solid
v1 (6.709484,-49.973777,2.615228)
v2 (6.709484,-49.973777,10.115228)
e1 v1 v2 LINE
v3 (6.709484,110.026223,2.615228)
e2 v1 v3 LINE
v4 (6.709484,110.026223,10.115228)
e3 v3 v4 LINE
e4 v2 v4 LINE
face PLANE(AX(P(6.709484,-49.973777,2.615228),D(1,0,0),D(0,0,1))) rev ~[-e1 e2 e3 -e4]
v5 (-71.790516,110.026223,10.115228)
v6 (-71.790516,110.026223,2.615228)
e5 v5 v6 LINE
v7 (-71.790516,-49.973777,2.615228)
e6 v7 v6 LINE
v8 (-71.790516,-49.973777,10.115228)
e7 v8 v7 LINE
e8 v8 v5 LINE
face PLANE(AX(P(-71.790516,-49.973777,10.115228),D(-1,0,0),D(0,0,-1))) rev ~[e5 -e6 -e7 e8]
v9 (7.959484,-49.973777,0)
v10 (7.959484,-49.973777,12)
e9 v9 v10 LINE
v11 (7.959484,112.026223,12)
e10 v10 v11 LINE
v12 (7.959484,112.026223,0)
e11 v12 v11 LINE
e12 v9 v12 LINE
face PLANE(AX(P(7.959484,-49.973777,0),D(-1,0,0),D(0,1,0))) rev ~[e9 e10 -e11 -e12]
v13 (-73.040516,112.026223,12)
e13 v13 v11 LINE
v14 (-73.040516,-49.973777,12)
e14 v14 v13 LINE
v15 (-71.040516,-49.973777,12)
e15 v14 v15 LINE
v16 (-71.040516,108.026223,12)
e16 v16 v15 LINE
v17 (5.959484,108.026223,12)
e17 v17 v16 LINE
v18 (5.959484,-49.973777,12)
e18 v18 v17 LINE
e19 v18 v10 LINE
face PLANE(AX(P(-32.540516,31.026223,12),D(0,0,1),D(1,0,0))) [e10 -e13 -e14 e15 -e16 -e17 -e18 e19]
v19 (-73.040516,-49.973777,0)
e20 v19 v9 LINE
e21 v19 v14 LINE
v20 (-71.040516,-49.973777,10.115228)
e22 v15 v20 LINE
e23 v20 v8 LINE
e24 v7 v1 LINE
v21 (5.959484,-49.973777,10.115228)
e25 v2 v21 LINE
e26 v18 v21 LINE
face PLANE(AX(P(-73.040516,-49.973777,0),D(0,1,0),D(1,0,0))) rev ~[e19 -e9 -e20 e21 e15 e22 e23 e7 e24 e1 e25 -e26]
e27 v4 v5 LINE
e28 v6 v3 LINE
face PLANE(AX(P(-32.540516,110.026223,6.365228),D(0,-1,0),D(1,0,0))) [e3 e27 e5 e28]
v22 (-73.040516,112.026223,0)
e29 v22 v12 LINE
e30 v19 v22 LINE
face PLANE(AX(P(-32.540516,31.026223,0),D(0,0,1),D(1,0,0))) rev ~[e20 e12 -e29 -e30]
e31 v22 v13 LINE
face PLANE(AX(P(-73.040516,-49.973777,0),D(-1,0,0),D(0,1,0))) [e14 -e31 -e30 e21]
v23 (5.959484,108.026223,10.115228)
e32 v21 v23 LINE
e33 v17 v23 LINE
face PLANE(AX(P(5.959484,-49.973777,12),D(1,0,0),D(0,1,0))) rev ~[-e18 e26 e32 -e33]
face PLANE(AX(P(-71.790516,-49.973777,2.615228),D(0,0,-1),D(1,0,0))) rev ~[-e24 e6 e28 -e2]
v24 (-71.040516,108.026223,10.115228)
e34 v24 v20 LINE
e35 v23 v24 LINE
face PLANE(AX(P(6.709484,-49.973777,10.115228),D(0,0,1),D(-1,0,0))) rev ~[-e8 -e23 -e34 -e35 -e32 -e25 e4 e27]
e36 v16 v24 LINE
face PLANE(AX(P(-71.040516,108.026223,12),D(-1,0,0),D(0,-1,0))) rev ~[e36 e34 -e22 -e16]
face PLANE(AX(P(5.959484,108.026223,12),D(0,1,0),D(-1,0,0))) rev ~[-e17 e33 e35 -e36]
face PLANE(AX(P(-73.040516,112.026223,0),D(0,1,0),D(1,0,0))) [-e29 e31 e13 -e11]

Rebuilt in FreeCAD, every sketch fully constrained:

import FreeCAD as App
import Part
import Sketcher
Q = App.Units.Quantity

doc = App.newDocument("Part")
params = doc.addObject("Spreadsheet::Sheet", "Params")
for row, (alias, value) in enumerate([
    ("sketch1_width", "81 mm"),
    ("sketch1_height", "162 mm"),
    ("pad1_length", "12 mm"),
    ("sketch2_width", "78.5 mm"),
    ("sketch2_height", "7.5 mm"),
    ("pocket1_length", "160 mm"),
    ("sketch3_width", "77 mm"),
    ("sketch3_height", "158 mm"),
    ("pocket2_length", "7.431314 mm"),
], start=1):
    params.set(f"A{row}", alias)
    params.set(f"B{row}", "=" + value)
    params.setAlias(f"B{row}", alias)

body = doc.addObject("PartDesign::Body", "Body")

# Sketch on XY plane
sketch1 = body.newObject("Sketcher::SketchObject", "Sketch")
sketch1.AttachmentSupport = (doc.getObject("XY_Plane"), [""])
sketch1.MapMode = "FlatFace"
sketch1.addGeometry(Part.LineSegment(App.Vector(-73.040516, 112.026223, 0), App.Vector(-73.040516, -49.973777, 0)), False)
sketch1.addGeometry(Part.LineSegment(App.Vector(-73.040516, -49.973777, 0), App.Vector(7.959484, -49.973777, 0)), False)
sketch1.addGeometry(Part.LineSegment(App.Vector(7.959484, -49.973777, 0), App.Vector(7.959484, 112.026223, 0)), False)
sketch1.addGeometry(Part.LineSegment(App.Vector(7.959484, 112.026223, 0), App.Vector(-73.040516, 112.026223, 0)), False)
sketch1.addConstraint(Sketcher.Constraint("Coincident", 0, 2, 1, 1))
sketch1.addConstraint(Sketcher.Constraint("Coincident", 1, 2, 2, 1))
sketch1.addConstraint(Sketcher.Constraint("Coincident", 2, 2, 3, 1))
sketch1.addConstraint(Sketcher.Constraint("Coincident", 3, 2, 0, 1))
sketch1.addConstraint(Sketcher.Constraint("Vertical", 0))
sketch1.addConstraint(Sketcher.Constraint("Horizontal", 1))
sketch1.addConstraint(Sketcher.Constraint("Vertical", 2))
sketch1.addConstraint(Sketcher.Constraint("Horizontal", 3))
sketch1.addConstraint(Sketcher.Constraint("DistanceX", 1, 1, 1, 2, Q("81 mm")))
sketch1.addConstraint(Sketcher.Constraint("DistanceY", 0, 2, 0, 1, Q("162 mm")))
sketch1.addConstraint(Sketcher.Constraint("DistanceX", 0, 2, -1, 1, Q("73.040516 mm")))
sketch1.addConstraint(Sketcher.Constraint("DistanceY", 0, 2, -1, 1, Q("49.973777 mm")))
sketch1.setExpression("Constraints[8]", "Params.sketch1_width")
sketch1.setExpression("Constraints[9]", "Params.sketch1_height")
pad1 = body.newObject("PartDesign::Pad", "Pad")
pad1.Profile = sketch1
pad1.setExpression("Length", "Params.pad1_length")

# Sketch on XZ plane
sketch2 = body.newObject("Sketcher::SketchObject", "Sketch001")
sketch2.AttachmentSupport = (doc.getObject("XZ_Plane"), [""])
sketch2.MapMode = "FlatFace"
sketch2.AttachmentOffset = App.Placement(App.Vector(0, 0, 49.973777), App.Rotation())
sketch2.addGeometry(Part.LineSegment(App.Vector(6.709484, 10.115228, 0), App.Vector(-71.790516, 10.115228, 0)), False)
sketch2.addGeometry(Part.LineSegment(App.Vector(-71.790516, 10.115228, 0), App.Vector(-71.790516, 2.615228, 0)), False)
sketch2.addGeometry(Part.LineSegment(App.Vector(-71.790516, 2.615228, 0), App.Vector(6.709484, 2.615228, 0)), False)
sketch2.addGeometry(Part.LineSegment(App.Vector(6.709484, 2.615228, 0), App.Vector(6.709484, 10.115228, 0)), False)
sketch2.addConstraint(Sketcher.Constraint("Coincident", 0, 2, 1, 1))
sketch2.addConstraint(Sketcher.Constraint("Coincident", 1, 2, 2, 1))
sketch2.addConstraint(Sketcher.Constraint("Coincident", 2, 2, 3, 1))
sketch2.addConstraint(Sketcher.Constraint("Coincident", 3, 2, 0, 1))
sketch2.addConstraint(Sketcher.Constraint("Horizontal", 0))
sketch2.addConstraint(Sketcher.Constraint("Vertical", 1))
sketch2.addConstraint(Sketcher.Constraint("Horizontal", 2))
sketch2.addConstraint(Sketcher.Constraint("Vertical", 3))
sketch2.addConstraint(Sketcher.Constraint("DistanceX", 0, 2, 0, 1, Q("78.5 mm")))
sketch2.addConstraint(Sketcher.Constraint("DistanceY", 1, 2, 1, 1, Q("7.5 mm")))
sketch2.addConstraint(Sketcher.Constraint("DistanceY", -1, 1, 1, 2, Q("2.615228 mm")))
sketch2.addConstraint(Sketcher.Constraint("DistanceX", 0, 2, -1, 1, Q("71.790516 mm")))
sketch2.setExpression("Constraints[8]", "Params.sketch2_width")
sketch2.setExpression("Constraints[9]", "Params.sketch2_height")
pocket1 = body.newObject("PartDesign::Pocket", "Pocket")
pocket1.Profile = sketch2
pocket1.setExpression("Length", "Params.pocket1_length")

# Sketch on XY plane
sketch3 = body.newObject("Sketcher::SketchObject", "Sketch002")
sketch3.AttachmentSupport = (doc.getObject("XY_Plane"), [""])
sketch3.MapMode = "FlatFace"
sketch3.AttachmentOffset = App.Placement(App.Vector(0, 0, 12), App.Rotation())
sketch3.addGeometry(Part.LineSegment(App.Vector(5.959484, 108.026223, 0), App.Vector(-71.040516, 108.026223, 0)), False)
sketch3.addGeometry(Part.LineSegment(App.Vector(-71.040516, 108.026223, 0), App.Vector(-71.040516, -49.973777, 0)), False)
sketch3.addGeometry(Part.LineSegment(App.Vector(-71.040516, -49.973777, 0), App.Vector(5.959484, -49.973777, 0)), False)
sketch3.addGeometry(Part.LineSegment(App.Vector(5.959484, -49.973777, 0), App.Vector(5.959484, 108.026223, 0)), False)
sketch3.addConstraint(Sketcher.Constraint("Coincident", 0, 2, 1, 1))
sketch3.addConstraint(Sketcher.Constraint("Coincident", 1, 2, 2, 1))
sketch3.addConstraint(Sketcher.Constraint("Coincident", 2, 2, 3, 1))
sketch3.addConstraint(Sketcher.Constraint("Coincident", 3, 2, 0, 1))
sketch3.addConstraint(Sketcher.Constraint("Horizontal", 0))
sketch3.addConstraint(Sketcher.Constraint("Vertical", 1))
sketch3.addConstraint(Sketcher.Constraint("Horizontal", 2))
sketch3.addConstraint(Sketcher.Constraint("Vertical", 3))
sketch3.addConstraint(Sketcher.Constraint("DistanceX", 0, 2, 0, 1, Q("77 mm")))
sketch3.addConstraint(Sketcher.Constraint("DistanceY", 1, 2, 1, 1, Q("158 mm")))
sketch3.addConstraint(Sketcher.Constraint("DistanceX", 0, 2, -1, 1, Q("71.040516 mm")))
sketch3.addConstraint(Sketcher.Constraint("DistanceY", -1, 1, 0, 2, Q("108.026223 mm")))
sketch3.setExpression("Constraints[8]", "Params.sketch3_width")
sketch3.setExpression("Constraints[9]", "Params.sketch3_height")
pocket2 = body.newObject("PartDesign::Pocket", "Pocket001")
pocket2.Profile = sketch3
pocket2.setExpression("Length", "Params.pocket2_length")

doc.recompute()
